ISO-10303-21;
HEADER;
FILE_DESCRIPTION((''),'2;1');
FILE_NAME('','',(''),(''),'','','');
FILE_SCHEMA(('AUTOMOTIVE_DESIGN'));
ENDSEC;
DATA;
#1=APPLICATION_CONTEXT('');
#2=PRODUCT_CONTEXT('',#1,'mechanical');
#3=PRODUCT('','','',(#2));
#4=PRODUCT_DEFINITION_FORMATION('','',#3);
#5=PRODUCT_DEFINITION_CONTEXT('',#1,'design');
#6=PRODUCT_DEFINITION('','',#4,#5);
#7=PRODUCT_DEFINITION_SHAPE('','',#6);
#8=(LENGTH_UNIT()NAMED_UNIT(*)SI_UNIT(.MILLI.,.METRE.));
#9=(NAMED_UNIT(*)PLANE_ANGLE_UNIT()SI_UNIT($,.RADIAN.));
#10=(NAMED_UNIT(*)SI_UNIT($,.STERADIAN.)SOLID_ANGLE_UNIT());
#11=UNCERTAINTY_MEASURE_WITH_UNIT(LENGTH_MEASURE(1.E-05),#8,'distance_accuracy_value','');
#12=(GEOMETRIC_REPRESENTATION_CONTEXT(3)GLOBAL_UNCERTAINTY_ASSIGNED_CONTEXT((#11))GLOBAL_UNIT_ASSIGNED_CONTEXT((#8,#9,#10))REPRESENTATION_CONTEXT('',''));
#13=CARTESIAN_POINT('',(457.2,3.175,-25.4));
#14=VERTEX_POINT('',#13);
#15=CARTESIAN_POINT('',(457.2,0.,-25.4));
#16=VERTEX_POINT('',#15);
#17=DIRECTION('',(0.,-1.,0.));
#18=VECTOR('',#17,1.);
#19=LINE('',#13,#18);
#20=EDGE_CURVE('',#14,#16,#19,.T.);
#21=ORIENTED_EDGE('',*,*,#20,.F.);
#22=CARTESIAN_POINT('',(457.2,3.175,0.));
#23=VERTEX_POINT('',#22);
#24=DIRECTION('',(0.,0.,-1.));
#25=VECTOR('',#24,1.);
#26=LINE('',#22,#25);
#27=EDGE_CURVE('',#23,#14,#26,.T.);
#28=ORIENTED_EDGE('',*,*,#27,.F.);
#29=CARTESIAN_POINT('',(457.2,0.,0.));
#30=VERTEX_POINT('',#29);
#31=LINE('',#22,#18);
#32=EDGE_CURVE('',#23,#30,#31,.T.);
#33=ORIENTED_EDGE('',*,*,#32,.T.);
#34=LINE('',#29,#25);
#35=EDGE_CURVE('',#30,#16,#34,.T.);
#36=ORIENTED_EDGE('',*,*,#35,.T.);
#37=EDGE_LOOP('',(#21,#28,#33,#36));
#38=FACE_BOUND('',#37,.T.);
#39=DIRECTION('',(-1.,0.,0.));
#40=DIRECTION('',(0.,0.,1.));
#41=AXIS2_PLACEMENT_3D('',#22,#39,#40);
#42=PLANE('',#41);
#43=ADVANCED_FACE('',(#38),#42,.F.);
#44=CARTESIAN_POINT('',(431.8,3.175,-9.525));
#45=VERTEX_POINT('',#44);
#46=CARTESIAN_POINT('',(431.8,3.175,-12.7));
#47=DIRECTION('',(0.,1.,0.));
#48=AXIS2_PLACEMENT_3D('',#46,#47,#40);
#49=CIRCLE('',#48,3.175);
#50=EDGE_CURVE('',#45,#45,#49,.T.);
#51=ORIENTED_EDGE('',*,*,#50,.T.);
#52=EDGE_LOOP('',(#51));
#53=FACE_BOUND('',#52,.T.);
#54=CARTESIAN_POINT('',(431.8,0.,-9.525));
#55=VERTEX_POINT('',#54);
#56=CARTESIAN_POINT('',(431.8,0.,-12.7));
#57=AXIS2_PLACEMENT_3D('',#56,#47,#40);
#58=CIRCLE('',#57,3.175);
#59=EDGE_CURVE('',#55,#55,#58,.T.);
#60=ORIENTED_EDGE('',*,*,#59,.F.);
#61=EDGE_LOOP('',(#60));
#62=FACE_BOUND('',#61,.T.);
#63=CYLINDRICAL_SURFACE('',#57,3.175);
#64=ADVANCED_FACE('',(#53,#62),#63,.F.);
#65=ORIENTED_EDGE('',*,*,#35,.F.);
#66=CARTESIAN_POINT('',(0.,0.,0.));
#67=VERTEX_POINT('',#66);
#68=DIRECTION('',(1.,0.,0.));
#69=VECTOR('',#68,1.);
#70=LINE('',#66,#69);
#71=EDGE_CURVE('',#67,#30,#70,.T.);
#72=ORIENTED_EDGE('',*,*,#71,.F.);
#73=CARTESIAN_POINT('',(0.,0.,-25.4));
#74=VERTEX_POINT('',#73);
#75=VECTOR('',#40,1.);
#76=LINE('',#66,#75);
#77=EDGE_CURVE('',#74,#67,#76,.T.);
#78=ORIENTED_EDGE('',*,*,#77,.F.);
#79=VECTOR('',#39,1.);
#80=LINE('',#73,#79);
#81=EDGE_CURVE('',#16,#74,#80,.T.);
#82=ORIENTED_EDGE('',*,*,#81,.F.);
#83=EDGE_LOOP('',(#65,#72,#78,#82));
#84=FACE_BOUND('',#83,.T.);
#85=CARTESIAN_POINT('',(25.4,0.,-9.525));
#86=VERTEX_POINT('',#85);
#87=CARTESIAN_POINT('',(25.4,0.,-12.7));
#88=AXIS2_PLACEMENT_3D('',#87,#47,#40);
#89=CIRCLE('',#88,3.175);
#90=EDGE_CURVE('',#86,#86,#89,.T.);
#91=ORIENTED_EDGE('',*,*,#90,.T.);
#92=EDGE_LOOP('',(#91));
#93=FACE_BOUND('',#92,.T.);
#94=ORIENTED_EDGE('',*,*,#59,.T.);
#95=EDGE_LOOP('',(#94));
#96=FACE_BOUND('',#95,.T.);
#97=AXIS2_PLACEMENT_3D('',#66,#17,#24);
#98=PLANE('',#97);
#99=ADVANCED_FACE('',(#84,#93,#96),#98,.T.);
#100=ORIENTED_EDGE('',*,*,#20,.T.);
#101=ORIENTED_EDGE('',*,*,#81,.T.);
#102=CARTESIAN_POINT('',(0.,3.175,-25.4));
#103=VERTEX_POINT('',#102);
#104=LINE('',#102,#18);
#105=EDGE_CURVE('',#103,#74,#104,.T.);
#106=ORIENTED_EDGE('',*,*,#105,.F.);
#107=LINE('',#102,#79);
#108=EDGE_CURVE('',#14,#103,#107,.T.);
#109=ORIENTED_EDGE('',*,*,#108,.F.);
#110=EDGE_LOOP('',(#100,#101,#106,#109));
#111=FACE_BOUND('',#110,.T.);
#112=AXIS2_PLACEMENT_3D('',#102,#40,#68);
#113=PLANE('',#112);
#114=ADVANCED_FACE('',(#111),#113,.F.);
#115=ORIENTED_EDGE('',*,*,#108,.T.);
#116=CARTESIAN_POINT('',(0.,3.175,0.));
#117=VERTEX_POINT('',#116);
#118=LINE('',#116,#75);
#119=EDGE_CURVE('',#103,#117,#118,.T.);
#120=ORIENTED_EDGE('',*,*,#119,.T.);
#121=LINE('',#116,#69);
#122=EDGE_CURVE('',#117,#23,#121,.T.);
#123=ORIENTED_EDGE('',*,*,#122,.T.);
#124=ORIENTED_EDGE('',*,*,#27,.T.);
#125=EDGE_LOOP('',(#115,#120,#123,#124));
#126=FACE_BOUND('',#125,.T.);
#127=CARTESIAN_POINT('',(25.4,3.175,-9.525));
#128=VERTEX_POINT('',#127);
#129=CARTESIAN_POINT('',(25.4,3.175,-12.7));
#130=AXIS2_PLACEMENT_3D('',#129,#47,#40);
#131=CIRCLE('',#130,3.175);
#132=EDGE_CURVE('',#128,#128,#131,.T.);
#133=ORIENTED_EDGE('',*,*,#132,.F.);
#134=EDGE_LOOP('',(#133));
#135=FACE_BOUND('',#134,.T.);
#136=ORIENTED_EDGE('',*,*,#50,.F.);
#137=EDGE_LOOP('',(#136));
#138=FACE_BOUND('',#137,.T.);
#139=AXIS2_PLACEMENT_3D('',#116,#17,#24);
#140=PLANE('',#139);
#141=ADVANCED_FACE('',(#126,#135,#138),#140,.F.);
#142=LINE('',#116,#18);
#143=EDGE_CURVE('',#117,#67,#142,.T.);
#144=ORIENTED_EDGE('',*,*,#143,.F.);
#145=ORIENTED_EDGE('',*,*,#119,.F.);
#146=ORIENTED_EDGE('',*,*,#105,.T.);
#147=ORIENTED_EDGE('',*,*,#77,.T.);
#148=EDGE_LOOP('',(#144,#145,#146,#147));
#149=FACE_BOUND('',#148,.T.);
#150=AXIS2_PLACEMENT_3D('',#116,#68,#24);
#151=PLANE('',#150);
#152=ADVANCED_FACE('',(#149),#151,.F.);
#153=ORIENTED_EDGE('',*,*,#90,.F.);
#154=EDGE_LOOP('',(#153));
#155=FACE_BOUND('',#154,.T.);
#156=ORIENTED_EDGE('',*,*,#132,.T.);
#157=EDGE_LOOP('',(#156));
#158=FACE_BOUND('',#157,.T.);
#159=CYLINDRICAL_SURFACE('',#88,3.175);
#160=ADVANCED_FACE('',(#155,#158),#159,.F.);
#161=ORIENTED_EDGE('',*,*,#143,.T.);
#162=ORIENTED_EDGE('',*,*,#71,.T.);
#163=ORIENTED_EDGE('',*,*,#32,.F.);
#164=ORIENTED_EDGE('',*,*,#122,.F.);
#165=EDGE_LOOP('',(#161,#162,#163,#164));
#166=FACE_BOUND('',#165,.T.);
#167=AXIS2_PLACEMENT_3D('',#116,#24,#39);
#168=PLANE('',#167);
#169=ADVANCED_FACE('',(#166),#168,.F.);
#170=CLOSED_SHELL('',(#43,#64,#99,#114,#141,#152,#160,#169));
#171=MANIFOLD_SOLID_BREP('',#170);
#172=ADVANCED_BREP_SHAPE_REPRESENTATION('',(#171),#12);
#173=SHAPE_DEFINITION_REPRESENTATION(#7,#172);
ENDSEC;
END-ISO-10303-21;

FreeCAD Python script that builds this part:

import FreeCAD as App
import Part
import Sketcher

V = App.Vector
Q = App.Units.Quantity

doc = App.newDocument("Part")
params = doc.addObject("Spreadsheet::Sheet", "Params")
for row, (alias, value) in enumerate([
    ("sketch1_width", "18 in"),
    ("sketch1_height", "1 in"),
    ("pad1_length", "0.125 in"),
    ("sketch2_diameter", "0.25 in"),
], start=1):
    params.set(f"A{row}", alias)
    params.set(f"B{row}", "=" + value)
    params.setAlias(f"B{row}", alias)

body = doc.addObject("PartDesign::Body", "Body")

# Sketch on XZ plane
sketch1 = body.newObject("Sketcher::SketchObject", "Sketch")
sketch1.AttachmentSupport = (doc.getObject("XZ_Plane"), [""])
sketch1.MapMode = "FlatFace"
sketch1.addGeometry([
    Part.LineSegment(V(0, -25, 0), V(0, 0, 0)),
    Part.LineSegment(V(0, 0, 0), V(457, 0, 0)),
    Part.LineSegment(V(457, 0, 0), V(457, -25, 0)),
    Part.LineSegment(V(457, -25, 0), V(0, -25, 0)),
], False)
sketch1.addConstraint([
    Sketcher.Constraint("Coincident", 0, 2, 1, 1),
    Sketcher.Constraint("Coincident", 1, 2, 2, 1),
    Sketcher.Constraint("Coincident", 2, 2, 3, 1),
    Sketcher.Constraint("Coincident", 3, 2, 0, 1),
    Sketcher.Constraint("Vertical", 0),
    Sketcher.Constraint("Horizontal", 1),
    Sketcher.Constraint("Vertical", 2),
    Sketcher.Constraint("Horizontal", 3),
    Sketcher.Constraint("Coincident", 0, 2, -1, 1),
    Sketcher.Constraint("DistanceX", 1, 1, 1, 2, Q("18 in")),
    Sketcher.Constraint("DistanceY", 0, 1, 0, 2, Q("1 in")),
])
sketch1.setExpression("Constraints[9]", "Params.sketch1_width")
sketch1.setExpression("Constraints[10]", "Params.sketch1_height")
pad1 = body.newObject("PartDesign::Pad", "Pad")
pad1.Profile = sketch1
pad1.setExpression("Length", "Params.pad1_length")
pad1.Reversed = True

# Sketch on XZ plane
sketch2 = body.newObject("Sketcher::SketchObject", "Sketch001")
sketch2.AttachmentSupport = (doc.getObject("XZ_Plane"), [""])
sketch2.MapMode = "FlatFace"
sketch2.AttachmentOffset = App.Placement(V(0, 0, -0.125 * 25.4), App.Rotation())
sketch2.addGeometry([
    Part.Circle(V(431.8, -12.7, 0), V(0, 0, 1), 3.2),
    Part.Circle(V(25.4, -12.7, 0), V(0, 0, 1), 3.2),
], False)
sketch2.addConstraint([
    Sketcher.Constraint("Equal", 0, 1),
    Sketcher.Constraint("Horizontal", 0, 3, 1, 3),
    Sketcher.Constraint("Diameter", 0, Q("0.25 in")),
    Sketcher.Constraint("DistanceX", -1, 1, 0, 3, Q("17 in")),
    Sketcher.Constraint("DistanceX", -1, 1, 1, 3, Q("1 in")),
    Sketcher.Constraint("DistanceY", 0, 3, -1, 1, Q("0.5 in")),
])
sketch2.setExpression("Constraints[2]", "Params.sketch2_diameter")
pocket1 = body.newObject("PartDesign::Pocket", "Pocket")
pocket1.Profile = sketch2
pocket1.Type = "ThroughAll"
pocket1.Reversed = True

doc.recompute()
